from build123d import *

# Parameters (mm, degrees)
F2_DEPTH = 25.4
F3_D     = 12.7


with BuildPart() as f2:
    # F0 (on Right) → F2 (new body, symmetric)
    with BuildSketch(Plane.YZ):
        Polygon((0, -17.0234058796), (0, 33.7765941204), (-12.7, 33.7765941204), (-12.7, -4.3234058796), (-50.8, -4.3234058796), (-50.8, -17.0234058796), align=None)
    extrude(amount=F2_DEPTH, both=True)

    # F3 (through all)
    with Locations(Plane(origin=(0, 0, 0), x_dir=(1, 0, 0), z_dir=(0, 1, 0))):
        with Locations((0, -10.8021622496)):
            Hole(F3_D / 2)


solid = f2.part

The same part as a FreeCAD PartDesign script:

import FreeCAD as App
import Part
import Sketcher

V = App.Vector
Q = App.Units.Quantity


def add_polygon(sketch, points):
    """Adds a closed chain of lines whose ends are joined by coincident constraints."""
    first, n = sketch.GeometryCount, len(points)
    for a, b in zip(points, points[1:] + points[:1]):
        sketch.addGeometry(Part.LineSegment(App.Vector(*a, 0), App.Vector(*b, 0)), False)
    for i in range(n):
        sketch.addConstraint(Sketcher.Constraint("Coincident", first + i, 2, first + (i + 1) % n, 1))

doc = App.newDocument("Part")
params = doc.addObject("Spreadsheet::Sheet", "Params")
for row, (alias, value) in enumerate([
    ("sketch1_width", "2 in"),
    ("sketch1_width2", "0.5 in"),
    ("pad1_length", "2 in"),
    ("sketch2_diameter", "0.5 in"),
    ("hole_diameter", "0.5 in"),
], start=1):
    params.set(f"A{row}", alias)
    params.set(f"B{row}", "=" + value)
    params.setAlias(f"B{row}", alias)

body = doc.addObject("PartDesign::Body", "Body")

# Sketch on YZ plane
sketch1 = body.newObject("Sketcher::SketchObject", "Sketch")
sketch1.AttachmentSupport = (doc.getObject("YZ_Plane"), [""])
sketch1.MapMode = "FlatFace"
add_polygon(sketch1, [(0, -17), (0, 34), (-13, 34), (-13, -4), (-51, -4), (-51, -17)])  # lines 0-5
sketch1.addConstraint([
    Sketcher.Constraint("Vertical", 0),
    Sketcher.Constraint("Horizontal", 1),
    Sketcher.Constraint("Vertical", 2),
    Sketcher.Constraint("Horizontal", 3),
    Sketcher.Constraint("Vertical", 4),
    Sketcher.Constraint("Horizontal", 5),
    Sketcher.Constraint("PointOnObject", 0, 2, -2),
    Sketcher.Constraint("Equal", 5, 0),
    Sketcher.Constraint("Equal", 3, 2),
    Sketcher.Constraint("DistanceX", 5, 1, 5, 2, Q("2 in")),
    Sketcher.Constraint("DistanceX", 1, 2, 1, 1, Q("0.5 in")),
    Sketcher.Constraint("DistanceY", -1, 1, 0, 2, Q("33.776594 mm")),
])
sketch1.setExpression("Constraints[15]", "Params.sketch1_width")
sketch1.setExpression("Constraints[16]", "Params.sketch1_width2")
pad1 = body.newObject("PartDesign::Pad", "Pad")
pad1.Profile = sketch1
pad1.setExpression("Length", "Params.pad1_length")
pad1.Midplane = True

# Sketch on XZ plane
sketch2 = body.newObject("Sketcher::SketchObject", "Sketch001")
sketch2.AttachmentSupport = (doc.getObject("XZ_Plane"), [""])
sketch2.MapMode = "FlatFace"
sketch2.addGeometry(Part.Circle(V(0, 11, 0), V(0, 0, 1), 6), False)
sketch2.addConstraint([
    Sketcher.Constraint("PointOnObject", 0, 3, -2),
    Sketcher.Constraint("Diameter", 0, Q("0.5 in")),
    Sketcher.Constraint("DistanceY", -1, 1, 0, 3, Q("10.802162 mm")),
])
sketch2.setExpression("Constraints[1]", "Params.sketch2_diameter")
doc.recompute()
hole = body.newObject("PartDesign::Hole", "Hole")
hole.Profile = sketch2
hole.ThreadType = "None"
hole.setExpression("Diameter", "Params.hole_diameter")
hole.DepthType = "ThroughAll"
hole.Reversed = True

doc.recompute()
